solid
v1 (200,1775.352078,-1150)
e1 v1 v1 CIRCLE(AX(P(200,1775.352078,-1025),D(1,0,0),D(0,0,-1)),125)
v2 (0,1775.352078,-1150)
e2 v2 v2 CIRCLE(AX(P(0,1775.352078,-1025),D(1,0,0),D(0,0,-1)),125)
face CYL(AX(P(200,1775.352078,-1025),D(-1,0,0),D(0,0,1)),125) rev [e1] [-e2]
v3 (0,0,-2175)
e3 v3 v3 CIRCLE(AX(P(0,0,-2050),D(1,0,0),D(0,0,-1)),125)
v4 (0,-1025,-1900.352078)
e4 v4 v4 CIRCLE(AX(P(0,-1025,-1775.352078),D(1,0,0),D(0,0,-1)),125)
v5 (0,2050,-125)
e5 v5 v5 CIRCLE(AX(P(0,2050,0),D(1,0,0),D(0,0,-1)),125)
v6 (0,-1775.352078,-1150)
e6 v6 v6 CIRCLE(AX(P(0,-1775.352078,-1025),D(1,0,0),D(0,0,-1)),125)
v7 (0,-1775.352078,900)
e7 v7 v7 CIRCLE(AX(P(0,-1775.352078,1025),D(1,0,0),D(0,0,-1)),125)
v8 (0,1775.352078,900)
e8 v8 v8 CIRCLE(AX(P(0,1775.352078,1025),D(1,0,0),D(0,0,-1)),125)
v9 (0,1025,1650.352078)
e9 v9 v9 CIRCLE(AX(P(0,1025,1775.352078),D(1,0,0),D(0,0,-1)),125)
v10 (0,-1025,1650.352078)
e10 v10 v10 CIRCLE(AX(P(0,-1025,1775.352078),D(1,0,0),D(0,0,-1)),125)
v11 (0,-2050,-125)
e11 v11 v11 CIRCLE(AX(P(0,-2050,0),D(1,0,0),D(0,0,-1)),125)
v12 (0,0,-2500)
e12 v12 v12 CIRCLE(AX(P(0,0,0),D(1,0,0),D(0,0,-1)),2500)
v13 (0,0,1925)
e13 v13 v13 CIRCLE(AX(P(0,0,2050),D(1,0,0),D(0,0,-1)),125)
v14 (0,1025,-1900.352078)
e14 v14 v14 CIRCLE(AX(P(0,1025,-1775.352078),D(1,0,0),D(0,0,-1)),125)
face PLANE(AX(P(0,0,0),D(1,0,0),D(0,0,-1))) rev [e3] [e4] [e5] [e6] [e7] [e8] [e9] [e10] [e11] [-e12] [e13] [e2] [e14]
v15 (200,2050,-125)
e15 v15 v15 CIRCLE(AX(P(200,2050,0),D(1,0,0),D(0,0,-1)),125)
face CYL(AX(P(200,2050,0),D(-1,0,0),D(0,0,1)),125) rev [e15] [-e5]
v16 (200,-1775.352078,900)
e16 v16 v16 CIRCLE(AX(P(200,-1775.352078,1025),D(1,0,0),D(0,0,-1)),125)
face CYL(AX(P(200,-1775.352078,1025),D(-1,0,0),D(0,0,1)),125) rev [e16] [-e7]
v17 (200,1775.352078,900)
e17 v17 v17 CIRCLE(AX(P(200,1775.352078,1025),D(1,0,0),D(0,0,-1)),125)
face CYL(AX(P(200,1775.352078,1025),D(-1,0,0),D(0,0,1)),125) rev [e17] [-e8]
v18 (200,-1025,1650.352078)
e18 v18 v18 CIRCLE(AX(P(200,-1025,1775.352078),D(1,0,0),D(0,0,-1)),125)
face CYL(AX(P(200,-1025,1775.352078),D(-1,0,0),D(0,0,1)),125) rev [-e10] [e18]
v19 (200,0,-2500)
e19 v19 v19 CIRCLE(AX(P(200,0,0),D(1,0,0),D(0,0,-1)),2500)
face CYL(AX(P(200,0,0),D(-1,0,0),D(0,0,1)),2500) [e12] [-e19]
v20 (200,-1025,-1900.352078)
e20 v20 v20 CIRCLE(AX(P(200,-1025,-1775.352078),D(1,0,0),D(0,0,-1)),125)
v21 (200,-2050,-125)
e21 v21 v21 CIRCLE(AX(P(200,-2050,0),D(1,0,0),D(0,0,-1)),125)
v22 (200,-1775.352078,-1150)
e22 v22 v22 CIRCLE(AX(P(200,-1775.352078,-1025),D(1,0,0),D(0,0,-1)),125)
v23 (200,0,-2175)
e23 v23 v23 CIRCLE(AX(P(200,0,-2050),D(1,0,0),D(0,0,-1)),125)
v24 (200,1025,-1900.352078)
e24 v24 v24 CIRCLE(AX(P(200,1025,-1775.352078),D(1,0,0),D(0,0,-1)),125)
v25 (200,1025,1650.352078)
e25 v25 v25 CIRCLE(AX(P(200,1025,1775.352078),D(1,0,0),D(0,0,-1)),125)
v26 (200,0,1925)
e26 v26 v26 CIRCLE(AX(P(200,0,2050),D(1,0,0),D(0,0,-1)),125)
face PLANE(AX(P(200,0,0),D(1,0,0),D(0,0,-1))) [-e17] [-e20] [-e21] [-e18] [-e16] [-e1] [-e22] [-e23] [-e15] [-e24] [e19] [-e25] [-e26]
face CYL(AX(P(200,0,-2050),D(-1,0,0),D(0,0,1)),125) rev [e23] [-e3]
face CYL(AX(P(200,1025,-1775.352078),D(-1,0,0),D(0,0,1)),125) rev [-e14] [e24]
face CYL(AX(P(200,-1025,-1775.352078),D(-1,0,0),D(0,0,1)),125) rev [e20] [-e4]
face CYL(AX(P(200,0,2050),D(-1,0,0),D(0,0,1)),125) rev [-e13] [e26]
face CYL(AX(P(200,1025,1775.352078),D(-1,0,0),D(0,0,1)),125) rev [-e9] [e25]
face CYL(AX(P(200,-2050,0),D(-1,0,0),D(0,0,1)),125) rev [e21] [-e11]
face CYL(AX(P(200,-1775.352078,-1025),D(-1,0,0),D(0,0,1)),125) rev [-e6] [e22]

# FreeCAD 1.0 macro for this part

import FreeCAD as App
import Part
import Sketcher
from FreeCAD import Vector

doc = App.newDocument("Part")
body = doc.addObject("PartDesign::Body", "Body")

sketch1 = doc.addObject("Sketcher::SketchObject", "Sketch")
body.addObject(sketch1)
sketch1.AttachmentSupport = (doc.YZ_Plane, [""])
sketch1.MapMode = "FlatFace"
sketch1.addGeometry([
    Part.Circle(Vector(0, 0, 0), Vector(0, 0, 1), 2500),
    Part.Circle(Vector(-1775, 1025, 0), Vector(0, 0, 1), 125),
    Part.Circle(Vector(-1025, 1775, 0), Vector(0, 0, 1), 125),
    Part.Circle(Vector(-2050, 0, 0), Vector(0, 0, 1), 125),
    Part.Circle(Vector(-1775, -1025, 0), Vector(0, 0, 1), 125),
    Part.Circle(Vector(-1025, -1775, 0), Vector(0, 0, 1), 125),
    Part.Circle(Vector(0, 2050, 0), Vector(0, 0, 1), 125),
    Part.Circle(Vector(1025, 1775, 0), Vector(0, 0, 1), 125),
    Part.Circle(Vector(1775, 1025, 0), Vector(0, 0, 1), 125),
    Part.Circle(Vector(0, -2050, 0), Vector(0, 0, 1), 125),
    Part.Circle(Vector(1025, -1775, 0), Vector(0, 0, 1), 125),
    Part.Circle(Vector(2050, 0, 0), Vector(0, 0, 1), 125),
    Part.Circle(Vector(1775, -1025, 0), Vector(0, 0, 1), 125),
], False)
sketch1.addConstraint([
    Sketcher.Constraint("Coincident", 0, 3, -1, 1),
    Sketcher.Constraint("Equal", 1, 2),
    Sketcher.Constraint("Equal", 2, 3),
    Sketcher.Constraint("Equal", 3, 4),
    Sketcher.Constraint("Equal", 4, 5),
    Sketcher.Constraint("Equal", 5, 6),
    Sketcher.Constraint("Equal", 6, 7),
    Sketcher.Constraint("Equal", 7, 8),
    Sketcher.Constraint("Equal", 8, 9),
    Sketcher.Constraint("Equal", 9, 10),
    Sketcher.Constraint("Equal", 10, 11),
    Sketcher.Constraint("Equal", 11, 12),
    Sketcher.Constraint("Symmetric", 5, 3, 7, 3, -1, 1),
    Sketcher.Constraint("Symmetric", 4, 3, 8, 3, -1, 1),
    Sketcher.Constraint("Symmetric", 6, 3, 9, 3, -1, 1),
    Sketcher.Constraint("Symmetric", 2, 3, 10, 3, -1, 1),
    Sketcher.Constraint("Symmetric", 3, 3, 11, 3, -1, 1),
    Sketcher.Constraint("Symmetric", 1, 3, 12, 3, -1, 1),
    Sketcher.Constraint("Symmetric", 2, 3, 7, 3, -2),
    Sketcher.Constraint("Symmetric", 1, 3, 8, 3, -2),
    Sketcher.Constraint("PointOnObject", 3, 3, -1),
    Sketcher.Constraint("PointOnObject", 6, 3, -2),
    Sketcher.Constraint("Diameter", 0, 5000.0),
    Sketcher.Constraint("Diameter", 1, 250.0),
    Sketcher.Constraint("DistanceY", -1, 1, 1, 3, 1025.0),
    Sketcher.Constraint("DistanceX", 2, 3, -1, 1, 1025.0),
    Sketcher.Constraint("DistanceX", 3, 3, -1, 1, 2050.0),
    Sketcher.Constraint("DistanceY", -1, 1, 6, 3, 2050.0),
    Sketcher.Constraint("DistanceX", 1, 3, -1, 1, 1775.352078),
    Sketcher.Constraint("DistanceY", -1, 1, 2, 3, 1775.352078),
])
pad1 = doc.addObject("PartDesign::Pad", "Pad")
body.addObject(pad1)
pad1.Profile = sketch1
pad1.Length = 200

doc.recompute()
